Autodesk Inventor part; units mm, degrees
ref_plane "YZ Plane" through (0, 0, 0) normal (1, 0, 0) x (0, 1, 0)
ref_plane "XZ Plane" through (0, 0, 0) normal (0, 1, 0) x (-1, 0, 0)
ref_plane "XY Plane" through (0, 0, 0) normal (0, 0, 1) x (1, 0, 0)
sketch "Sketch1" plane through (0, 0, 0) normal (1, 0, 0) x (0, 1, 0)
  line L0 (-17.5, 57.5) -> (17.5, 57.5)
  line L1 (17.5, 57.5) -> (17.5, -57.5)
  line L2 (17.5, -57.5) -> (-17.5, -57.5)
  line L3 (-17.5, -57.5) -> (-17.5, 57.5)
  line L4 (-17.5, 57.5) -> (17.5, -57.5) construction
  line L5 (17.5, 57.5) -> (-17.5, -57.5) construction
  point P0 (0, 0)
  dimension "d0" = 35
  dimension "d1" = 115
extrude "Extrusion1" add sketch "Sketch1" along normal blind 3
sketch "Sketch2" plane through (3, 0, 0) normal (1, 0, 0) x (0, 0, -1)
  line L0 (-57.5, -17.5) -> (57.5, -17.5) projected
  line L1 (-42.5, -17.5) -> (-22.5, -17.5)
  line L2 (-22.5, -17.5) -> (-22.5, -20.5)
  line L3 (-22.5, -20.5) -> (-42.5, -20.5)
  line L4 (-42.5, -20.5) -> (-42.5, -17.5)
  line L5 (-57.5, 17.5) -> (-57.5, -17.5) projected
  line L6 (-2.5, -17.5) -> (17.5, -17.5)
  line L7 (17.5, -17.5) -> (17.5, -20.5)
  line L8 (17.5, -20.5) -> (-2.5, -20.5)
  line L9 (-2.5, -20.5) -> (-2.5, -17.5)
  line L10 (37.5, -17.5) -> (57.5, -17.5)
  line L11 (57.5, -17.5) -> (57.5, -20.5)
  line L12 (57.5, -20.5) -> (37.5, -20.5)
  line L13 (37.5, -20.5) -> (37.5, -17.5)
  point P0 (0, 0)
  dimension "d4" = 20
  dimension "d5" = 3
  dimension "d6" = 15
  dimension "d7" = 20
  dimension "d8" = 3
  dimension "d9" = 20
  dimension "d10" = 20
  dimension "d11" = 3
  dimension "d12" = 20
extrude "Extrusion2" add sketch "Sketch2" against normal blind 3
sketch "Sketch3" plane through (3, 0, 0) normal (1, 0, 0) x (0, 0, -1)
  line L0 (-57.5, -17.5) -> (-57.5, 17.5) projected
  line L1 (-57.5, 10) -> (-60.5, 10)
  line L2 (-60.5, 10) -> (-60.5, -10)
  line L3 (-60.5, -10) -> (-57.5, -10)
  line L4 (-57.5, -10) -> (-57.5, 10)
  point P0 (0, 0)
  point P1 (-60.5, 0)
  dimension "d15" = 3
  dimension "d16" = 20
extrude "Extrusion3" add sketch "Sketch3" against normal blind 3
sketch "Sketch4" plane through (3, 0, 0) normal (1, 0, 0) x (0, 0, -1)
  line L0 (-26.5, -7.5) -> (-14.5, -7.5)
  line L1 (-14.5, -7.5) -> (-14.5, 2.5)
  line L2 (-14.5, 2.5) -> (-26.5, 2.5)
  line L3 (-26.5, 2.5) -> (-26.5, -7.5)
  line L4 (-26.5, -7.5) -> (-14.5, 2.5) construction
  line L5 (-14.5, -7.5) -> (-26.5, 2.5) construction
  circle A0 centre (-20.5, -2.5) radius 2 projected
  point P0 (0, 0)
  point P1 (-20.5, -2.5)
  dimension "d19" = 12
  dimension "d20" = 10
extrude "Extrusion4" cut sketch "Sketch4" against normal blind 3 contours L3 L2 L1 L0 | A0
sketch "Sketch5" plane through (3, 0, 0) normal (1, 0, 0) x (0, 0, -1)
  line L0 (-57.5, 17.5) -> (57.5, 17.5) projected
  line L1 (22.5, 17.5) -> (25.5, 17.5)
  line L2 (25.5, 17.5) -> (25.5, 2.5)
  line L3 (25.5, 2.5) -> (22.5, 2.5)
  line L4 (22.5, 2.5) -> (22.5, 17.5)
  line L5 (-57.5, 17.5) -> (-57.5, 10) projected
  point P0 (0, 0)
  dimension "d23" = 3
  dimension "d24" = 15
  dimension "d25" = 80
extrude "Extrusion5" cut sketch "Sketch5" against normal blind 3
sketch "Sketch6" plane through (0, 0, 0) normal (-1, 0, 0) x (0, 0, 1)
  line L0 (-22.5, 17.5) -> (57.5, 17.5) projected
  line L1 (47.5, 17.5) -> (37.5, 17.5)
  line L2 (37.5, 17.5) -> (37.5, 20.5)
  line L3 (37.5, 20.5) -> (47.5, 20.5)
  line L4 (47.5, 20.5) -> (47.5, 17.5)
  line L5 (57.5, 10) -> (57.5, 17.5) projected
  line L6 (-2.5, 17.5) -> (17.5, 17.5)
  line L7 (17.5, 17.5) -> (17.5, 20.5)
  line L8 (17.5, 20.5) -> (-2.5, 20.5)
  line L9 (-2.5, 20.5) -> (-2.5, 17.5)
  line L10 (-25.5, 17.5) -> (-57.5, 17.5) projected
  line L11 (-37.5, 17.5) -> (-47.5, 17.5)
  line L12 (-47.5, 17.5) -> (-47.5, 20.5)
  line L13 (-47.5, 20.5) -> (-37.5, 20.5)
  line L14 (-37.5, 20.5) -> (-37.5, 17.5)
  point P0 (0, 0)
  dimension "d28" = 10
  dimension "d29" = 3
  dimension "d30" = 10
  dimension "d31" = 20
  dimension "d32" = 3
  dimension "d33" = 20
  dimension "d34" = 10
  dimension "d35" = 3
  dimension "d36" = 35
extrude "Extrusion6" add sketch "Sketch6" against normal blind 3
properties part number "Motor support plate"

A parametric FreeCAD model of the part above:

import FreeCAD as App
import Part
import Sketcher

doc = App.newDocument("Part")
body = doc.addObject("PartDesign::Body", "Body")

# Sketch on YZ plane
sketch1 = doc.addObject("Sketcher::SketchObject", "Sketch")
body.addObject(sketch1)
sketch1.AttachmentSupport = (doc.YZ_Plane, [""])
sketch1.MapMode = "FlatFace"
sketch1.addGeometry([
    Part.LineSegment(App.Vector(18, 58, 0), App.Vector(-18, 58, 0)),
    Part.LineSegment(App.Vector(-18, 58, 0), App.Vector(-18, -58, 0)),
    Part.LineSegment(App.Vector(-18, -58, 0), App.Vector(18, -58, 0)),
    Part.LineSegment(App.Vector(18, -58, 0), App.Vector(18, 58, 0)),
], False)
sketch1.addConstraint([
    Sketcher.Constraint("Coincident", 0, 2, 1, 1),
    Sketcher.Constraint("Coincident", 1, 2, 2, 1),
    Sketcher.Constraint("Coincident", 2, 2, 3, 1),
    Sketcher.Constraint("Coincident", 3, 2, 0, 1),
    Sketcher.Constraint("Horizontal", 0),
    Sketcher.Constraint("Vertical", 1),
    Sketcher.Constraint("Horizontal", 2),
    Sketcher.Constraint("Vertical", 3),
    Sketcher.Constraint("Symmetric", 0, 2, 2, 2, -1, 1),
    Sketcher.Constraint("DistanceX", 0, 2, 0, 1, 35.0),
    Sketcher.Constraint("DistanceY", 1, 2, 1, 1, 115.0),
])
pad1 = doc.addObject("PartDesign::Pad", "Pad")
body.addObject(pad1)
pad1.Profile = sketch1
pad1.Length = 3

# Sketch on YZ plane
sketch2 = doc.addObject("Sketcher::SketchObject", "Sketch001")
body.addObject(sketch2)
sketch2.AttachmentSupport = (doc.YZ_Plane, [""])
sketch2.MapMode = "FlatFace"
sketch2.AttachmentOffset = App.Placement(App.Vector(0, 0, 3), App.Rotation())
sketch2.addGeometry([
    Part.LineSegment(App.Vector(-17.5, -57.5, 0), App.Vector(-17.5, -37.5, 0)),  # 0
    Part.LineSegment(App.Vector(-17.5, -37.5, 0), App.Vector(-20.5, -37.5, 0)),  # 1
    Part.LineSegment(App.Vector(-20.5, -37.5, 0), App.Vector(-20.5, -57.5, 0)),  # 2
    Part.LineSegment(App.Vector(-20.5, -57.5, 0), App.Vector(-17.5, -57.5, 0)),  # 3
    Part.LineSegment(App.Vector(-17.5, -17.5, 0), App.Vector(-17.5, 2.5, 0)),  # 4
    Part.LineSegment(App.Vector(-17.5, 2.5, 0), App.Vector(-20.5, 2.5, 0)),  # 5
    Part.LineSegment(App.Vector(-20.5, 2.5, 0), App.Vector(-20.5, -17.5, 0)),  # 6
    Part.LineSegment(App.Vector(-20.5, -17.5, 0), App.Vector(-17.5, -17.5, 0)),  # 7
    Part.LineSegment(App.Vector(-17.5, 22.5, 0), App.Vector(-17.5, 42.5, 0)),  # 8
    Part.LineSegment(App.Vector(-17.5, 42.5, 0), App.Vector(-20.5, 42.5, 0)),  # 9
    Part.LineSegment(App.Vector(-20.5, 42.5, 0), App.Vector(-20.5, 22.5, 0)),  # 10
    Part.LineSegment(App.Vector(-20.5, 22.5, 0), App.Vector(-17.5, 22.5, 0)),  # 11
], False)
sketch2.addConstraint([
    Sketcher.Constraint("Coincident", 0, 2, 1, 1),
    Sketcher.Constraint("Coincident", 1, 2, 2, 1),
    Sketcher.Constraint("Coincident", 2, 2, 3, 1),
    Sketcher.Constraint("Coincident", 3, 2, 0, 1),
    Sketcher.Constraint("Coincident", 4, 2, 5, 1),
    Sketcher.Constraint("Coincident", 5, 2, 6, 1),
    Sketcher.Constraint("Coincident", 6, 2, 7, 1),
    Sketcher.Constraint("Coincident", 7, 2, 4, 1),
    Sketcher.Constraint("Coincident", 8, 2, 9, 1),
    Sketcher.Constraint("Coincident", 9, 2, 10, 1),
    Sketcher.Constraint("Coincident", 10, 2, 11, 1),
    Sketcher.Constraint("Coincident", 11, 2, 8, 1),
    Sketcher.Constraint("Vertical", 0),
    Sketcher.Constraint("Horizontal", 1),
    Sketcher.Constraint("Vertical", 2),
    Sketcher.Constraint("Horizontal", 3),
    Sketcher.Constraint("Vertical", 4),
    Sketcher.Constraint("Horizontal", 5),
    Sketcher.Constraint("Vertical", 6),
    Sketcher.Constraint("Horizontal", 7),
    Sketcher.Constraint("Vertical", 8),
    Sketcher.Constraint("Horizontal", 9),
    Sketcher.Constraint("Vertical", 10),
    Sketcher.Constraint("Horizontal", 11),
    Sketcher.Constraint("Vertical", 3, 2, 4, 2),
    Sketcher.Constraint("Vertical", 2, 2, 5, 2),
    Sketcher.Constraint("Vertical", 7, 2, 8, 2),
    Sketcher.Constraint("Vertical", 6, 2, 9, 2),
    Sketcher.Constraint("Equal", 2, 4),
    Sketcher.Constraint("Equal", 6, 8),
    Sketcher.Constraint("DistanceX", 1, 2, 1, 1, 3.0),
    Sketcher.Constraint("DistanceY", 0, 1, 0, 2, 20.0),
    Sketcher.Constraint("DistanceY", 1, 2, 6, 2, 20.0),
    Sketcher.Constraint("DistanceY", 5, 2, 10, 2, 20.0),
    Sketcher.Constraint("DistanceX", 0, 2, -1, 1, 17.5),
    Sketcher.Constraint("DistanceY", 0, 2, -1, 1, 37.5),
])
pad2 = doc.addObject("PartDesign::Pad", "Pad001")
body.addObject(pad2)
pad2.Profile = sketch2
pad2.Length = 3
pad2.Reversed = True

# Sketch on YZ plane
sketch3 = doc.addObject("Sketcher::SketchObject", "Sketch002")
body.addObject(sketch3)
sketch3.AttachmentSupport = (doc.YZ_Plane, [""])
sketch3.MapMode = "FlatFace"
sketch3.AttachmentOffset = App.Placement(App.Vector(0, 0, 3), App.Rotation())
sketch3.addGeometry([
    Part.LineSegment(App.Vector(-10, 60.5, 0), App.Vector(-10, 57.5, 0)),
    Part.LineSegment(App.Vector(-10, 57.5, 0), App.Vector(10, 57.5, 0)),
    Part.LineSegment(App.Vector(10, 57.5, 0), App.Vector(10, 60.5, 0)),
    Part.LineSegment(App.Vector(10, 60.5, 0), App.Vector(-10, 60.5, 0)),
], False)
sketch3.addConstraint([
    Sketcher.Constraint("Coincident", 0, 2, 1, 1),
    Sketcher.Constraint("Coincident", 1, 2, 2, 1),
    Sketcher.Constraint("Coincident", 2, 2, 3, 1),
    Sketcher.Constraint("Coincident", 3, 2, 0, 1),
    Sketcher.Constraint("Vertical", 0),
    Sketcher.Constraint("Horizontal", 1),
    Sketcher.Constraint("Vertical", 2),
    Sketcher.Constraint("Horizontal", 3),
    Sketcher.Constraint("DistanceX", 1, 1, 1, 2, 20.0),
    Sketcher.Constraint("DistanceY", 0, 2, 0, 1, 3.0),
    Sketcher.Constraint("DistanceX", 0, 2, -1, 1, 10.0),
    Sketcher.Constraint("DistanceY", -1, 1, 0, 2, 57.5),
])
pad3 = doc.addObject("PartDesign::Pad", "Pad002")
body.addObject(pad3)
pad3.Profile = sketch3
pad3.Length = 3
pad3.Reversed = True

# Sketch on YZ plane
sketch4 = doc.addObject("Sketcher::SketchObject", "Sketch003")
body.addObject(sketch4)
sketch4.AttachmentSupport = (doc.YZ_Plane, [""])
sketch4.MapMode = "FlatFace"
sketch4.AttachmentOffset = App.Placement(App.Vector(0, 0, 3), App.Rotation())
sketch4.addGeometry([
    Part.LineSegment(App.Vector(2, 26, 0), App.Vector(-8, 26, 0)),
    Part.LineSegment(App.Vector(-8, 26, 0), App.Vector(-8, 14, 0)),
    Part.LineSegment(App.Vector(-8, 14, 0), App.Vector(2, 14, 0)),
    Part.LineSegment(App.Vector(2, 14, 0), App.Vector(2, 26, 0)),
], False)
sketch4.addConstraint([
    Sketcher.Constraint("Coincident", 0, 2, 1, 1),
    Sketcher.Constraint("Coincident", 1, 2, 2, 1),
    Sketcher.Constraint("Coincident", 2, 2, 3, 1),
    Sketcher.Constraint("Coincident", 3, 2, 0, 1),
    Sketcher.Constraint("Horizontal", 0),
    Sketcher.Constraint("Vertical", 1),
    Sketcher.Constraint("Horizontal", 2),
    Sketcher.Constraint("Vertical", 3),
    Sketcher.Constraint("DistanceX", 0, 2, 0, 1, 10.0),
    Sketcher.Constraint("DistanceY", 1, 2, 1, 1, 12.0),
    Sketcher.Constraint("DistanceX", 0, 2, -1, 1, 7.5),
    Sketcher.Constraint("DistanceY", -1, 1, 0, 2, 26.5),
])
pocket1 = doc.addObject("PartDesign::Pocket", "Pocket")
body.addObject(pocket1)
pocket1.Profile = sketch4
pocket1.Length = 3

# Sketch on YZ plane
sketch5 = doc.addObject("Sketcher::SketchObject", "Sketch004")
body.addObject(sketch5)
sketch5.AttachmentSupport = (doc.YZ_Plane, [""])
sketch5.MapMode = "FlatFace"
sketch5.AttachmentOffset = App.Placement(App.Vector(0, 0, 3), App.Rotation())
sketch5.addGeometry([
    Part.LineSegment(App.Vector(17.5, -25.5, 0), App.Vector(17.5, -22.5, 0)),
    Part.LineSegment(App.Vector(17.5, -22.5, 0), App.Vector(2.5, -22.5, 0)),
    Part.LineSegment(App.Vector(2.5, -22.5, 0), App.Vector(2.5, -25.5, 0)),
    Part.LineSegment(App.Vector(2.5, -25.5, 0), App.Vector(17.5, -25.5, 0)),
], False)
sketch5.addConstraint([
    Sketcher.Constraint("Coincident", 0, 2, 1, 1),
    Sketcher.Constraint("Coincident", 1, 2, 2, 1),
    Sketcher.Constraint("Coincident", 2, 2, 3, 1),
    Sketcher.Constraint("Coincident", 3, 2, 0, 1),
    Sketcher.Constraint("Vertical", 0),
    Sketcher.Constraint("Horizontal", 1),
    Sketcher.Constraint("Vertical", 2),
    Sketcher.Constraint("Horizontal", 3),
    Sketcher.Constraint("DistanceX", 1, 2, 1, 1, 15.0),
    Sketcher.Constraint("DistanceY", 0, 1, 0, 2, 3.0),
    Sketcher.Constraint("DistanceX", -1, 1, 0, 2, 17.5),
    Sketcher.Constraint("DistanceY", 0, 2, -1, 1, 22.5),
])
pocket2 = doc.addObject("PartDesign::Pocket", "Pocket001")
body.addObject(pocket2)
pocket2.Profile = sketch5
pocket2.Length = 3

# Sketch on YZ plane
sketch6 = doc.addObject("Sketcher::SketchObject", "Sketch005")
body.addObject(sketch6)
sketch6.AttachmentSupport = (doc.YZ_Plane, [""])
sketch6.MapMode = "FlatFace"
sketch6.addGeometry([
    Part.LineSegment(App.Vector(20.5, -2.5, 0), App.Vector(17.5, -2.5, 0)),  # 0
    Part.LineSegment(App.Vector(17.5, -2.5, 0), App.Vector(17.5, 17.5, 0)),  # 1
    Part.LineSegment(App.Vector(17.5, 17.5, 0), App.Vector(20.5, 17.5, 0)),  # 2
    Part.LineSegment(App.Vector(20.5, 17.5, 0), App.Vector(20.5, -2.5, 0)),  # 3
    Part.LineSegment(App.Vector(20.5, 37.5, 0), App.Vector(17.5, 37.5, 0)),  # 4
    Part.LineSegment(App.Vector(17.5, 37.5, 0), App.Vector(17.5, 47.5, 0)),  # 5
    Part.LineSegment(App.Vector(17.5, 47.5, 0), App.Vector(20.5, 47.5, 0)),  # 6
    Part.LineSegment(App.Vector(20.5, 47.5, 0), App.Vector(20.5, 37.5, 0)),  # 7
    Part.LineSegment(App.Vector(17.5, -47.5, 0), App.Vector(17.5, -37.5, 0)),  # 8
    Part.LineSegment(App.Vector(17.5, -37.5, 0), App.Vector(20.5, -37.5, 0)),  # 9
    Part.LineSegment(App.Vector(20.5, -37.5, 0), App.Vector(20.5, -47.5, 0)),  # 10
    Part.LineSegment(App.Vector(20.5, -47.5, 0), App.Vector(17.5, -47.5, 0)),  # 11
], False)
sketch6.addConstraint([
    Sketcher.Constraint("Coincident", 0, 2, 1, 1),
    Sketcher.Constraint("Coincident", 1, 2, 2, 1),
    Sketcher.Constraint("Coincident", 2, 2, 3, 1),
    Sketcher.Constraint("Coincident", 3, 2, 0, 1),
    Sketcher.Constraint("Coincident", 4, 2, 5, 1),
    Sketcher.Constraint("Coincident", 5, 2, 6, 1),
    Sketcher.Constraint("Coincident", 6, 2, 7, 1),
    Sketcher.Constraint("Coincident", 7, 2, 4, 1),
    Sketcher.Constraint("Coincident", 8, 2, 9, 1),
    Sketcher.Constraint("Coincident", 9, 2, 10, 1),
    Sketcher.Constraint("Coincident", 10, 2, 11, 1),
    Sketcher.Constraint("Coincident", 11, 2, 8, 1),
    Sketcher.Constraint("Horizontal", 0),
    Sketcher.Constraint("Vertical", 1),
    Sketcher.Constraint("Horizontal", 2),
    Sketcher.Constraint("Vertical", 3),
    Sketcher.Constraint("Horizontal", 4),
    Sketcher.Constraint("Vertical", 5),
    Sketcher.Constraint("Horizontal", 6),
    Sketcher.Constraint("Vertical", 7),
    Sketcher.Constraint("Vertical", 8),
    Sketcher.Constraint("Horizontal", 9),
    Sketcher.Constraint("Vertical", 10),
    Sketcher.Constraint("Horizontal", 11),
    Sketcher.Constraint("Symmetric", 4, 2, 8, 2, -1),
    Sketcher.Constraint("Symmetric", 6, 2, 10, 2, -1),
    Sketcher.Constraint("Vertical", 1, 2, 4, 2),
    Sketcher.Constraint("Vertical", 3, 2, 6, 2),
    Sketcher.Constraint("DistanceX", 0, 2, 0, 1, 3.0),
    Sketcher.Constraint("DistanceY", 1, 1, 1, 2, 20.0),
    Sketcher.Constraint("DistanceY", 5, 1, 5, 2, 10.0),
    Sketcher.Constraint("DistanceY", 1, 2, 4, 2, 20.0),
    Sketcher.Constraint("DistanceY", 8, 2, 0, 2, 35.0),
    Sketcher.Constraint("DistanceX", -1, 1, 0, 2, 17.5),
])
pad4 = doc.addObject("PartDesign::Pad", "Pad003")
body.addObject(pad4)
pad4.Profile = sketch6
pad4.Length = 3

doc.recompute()
